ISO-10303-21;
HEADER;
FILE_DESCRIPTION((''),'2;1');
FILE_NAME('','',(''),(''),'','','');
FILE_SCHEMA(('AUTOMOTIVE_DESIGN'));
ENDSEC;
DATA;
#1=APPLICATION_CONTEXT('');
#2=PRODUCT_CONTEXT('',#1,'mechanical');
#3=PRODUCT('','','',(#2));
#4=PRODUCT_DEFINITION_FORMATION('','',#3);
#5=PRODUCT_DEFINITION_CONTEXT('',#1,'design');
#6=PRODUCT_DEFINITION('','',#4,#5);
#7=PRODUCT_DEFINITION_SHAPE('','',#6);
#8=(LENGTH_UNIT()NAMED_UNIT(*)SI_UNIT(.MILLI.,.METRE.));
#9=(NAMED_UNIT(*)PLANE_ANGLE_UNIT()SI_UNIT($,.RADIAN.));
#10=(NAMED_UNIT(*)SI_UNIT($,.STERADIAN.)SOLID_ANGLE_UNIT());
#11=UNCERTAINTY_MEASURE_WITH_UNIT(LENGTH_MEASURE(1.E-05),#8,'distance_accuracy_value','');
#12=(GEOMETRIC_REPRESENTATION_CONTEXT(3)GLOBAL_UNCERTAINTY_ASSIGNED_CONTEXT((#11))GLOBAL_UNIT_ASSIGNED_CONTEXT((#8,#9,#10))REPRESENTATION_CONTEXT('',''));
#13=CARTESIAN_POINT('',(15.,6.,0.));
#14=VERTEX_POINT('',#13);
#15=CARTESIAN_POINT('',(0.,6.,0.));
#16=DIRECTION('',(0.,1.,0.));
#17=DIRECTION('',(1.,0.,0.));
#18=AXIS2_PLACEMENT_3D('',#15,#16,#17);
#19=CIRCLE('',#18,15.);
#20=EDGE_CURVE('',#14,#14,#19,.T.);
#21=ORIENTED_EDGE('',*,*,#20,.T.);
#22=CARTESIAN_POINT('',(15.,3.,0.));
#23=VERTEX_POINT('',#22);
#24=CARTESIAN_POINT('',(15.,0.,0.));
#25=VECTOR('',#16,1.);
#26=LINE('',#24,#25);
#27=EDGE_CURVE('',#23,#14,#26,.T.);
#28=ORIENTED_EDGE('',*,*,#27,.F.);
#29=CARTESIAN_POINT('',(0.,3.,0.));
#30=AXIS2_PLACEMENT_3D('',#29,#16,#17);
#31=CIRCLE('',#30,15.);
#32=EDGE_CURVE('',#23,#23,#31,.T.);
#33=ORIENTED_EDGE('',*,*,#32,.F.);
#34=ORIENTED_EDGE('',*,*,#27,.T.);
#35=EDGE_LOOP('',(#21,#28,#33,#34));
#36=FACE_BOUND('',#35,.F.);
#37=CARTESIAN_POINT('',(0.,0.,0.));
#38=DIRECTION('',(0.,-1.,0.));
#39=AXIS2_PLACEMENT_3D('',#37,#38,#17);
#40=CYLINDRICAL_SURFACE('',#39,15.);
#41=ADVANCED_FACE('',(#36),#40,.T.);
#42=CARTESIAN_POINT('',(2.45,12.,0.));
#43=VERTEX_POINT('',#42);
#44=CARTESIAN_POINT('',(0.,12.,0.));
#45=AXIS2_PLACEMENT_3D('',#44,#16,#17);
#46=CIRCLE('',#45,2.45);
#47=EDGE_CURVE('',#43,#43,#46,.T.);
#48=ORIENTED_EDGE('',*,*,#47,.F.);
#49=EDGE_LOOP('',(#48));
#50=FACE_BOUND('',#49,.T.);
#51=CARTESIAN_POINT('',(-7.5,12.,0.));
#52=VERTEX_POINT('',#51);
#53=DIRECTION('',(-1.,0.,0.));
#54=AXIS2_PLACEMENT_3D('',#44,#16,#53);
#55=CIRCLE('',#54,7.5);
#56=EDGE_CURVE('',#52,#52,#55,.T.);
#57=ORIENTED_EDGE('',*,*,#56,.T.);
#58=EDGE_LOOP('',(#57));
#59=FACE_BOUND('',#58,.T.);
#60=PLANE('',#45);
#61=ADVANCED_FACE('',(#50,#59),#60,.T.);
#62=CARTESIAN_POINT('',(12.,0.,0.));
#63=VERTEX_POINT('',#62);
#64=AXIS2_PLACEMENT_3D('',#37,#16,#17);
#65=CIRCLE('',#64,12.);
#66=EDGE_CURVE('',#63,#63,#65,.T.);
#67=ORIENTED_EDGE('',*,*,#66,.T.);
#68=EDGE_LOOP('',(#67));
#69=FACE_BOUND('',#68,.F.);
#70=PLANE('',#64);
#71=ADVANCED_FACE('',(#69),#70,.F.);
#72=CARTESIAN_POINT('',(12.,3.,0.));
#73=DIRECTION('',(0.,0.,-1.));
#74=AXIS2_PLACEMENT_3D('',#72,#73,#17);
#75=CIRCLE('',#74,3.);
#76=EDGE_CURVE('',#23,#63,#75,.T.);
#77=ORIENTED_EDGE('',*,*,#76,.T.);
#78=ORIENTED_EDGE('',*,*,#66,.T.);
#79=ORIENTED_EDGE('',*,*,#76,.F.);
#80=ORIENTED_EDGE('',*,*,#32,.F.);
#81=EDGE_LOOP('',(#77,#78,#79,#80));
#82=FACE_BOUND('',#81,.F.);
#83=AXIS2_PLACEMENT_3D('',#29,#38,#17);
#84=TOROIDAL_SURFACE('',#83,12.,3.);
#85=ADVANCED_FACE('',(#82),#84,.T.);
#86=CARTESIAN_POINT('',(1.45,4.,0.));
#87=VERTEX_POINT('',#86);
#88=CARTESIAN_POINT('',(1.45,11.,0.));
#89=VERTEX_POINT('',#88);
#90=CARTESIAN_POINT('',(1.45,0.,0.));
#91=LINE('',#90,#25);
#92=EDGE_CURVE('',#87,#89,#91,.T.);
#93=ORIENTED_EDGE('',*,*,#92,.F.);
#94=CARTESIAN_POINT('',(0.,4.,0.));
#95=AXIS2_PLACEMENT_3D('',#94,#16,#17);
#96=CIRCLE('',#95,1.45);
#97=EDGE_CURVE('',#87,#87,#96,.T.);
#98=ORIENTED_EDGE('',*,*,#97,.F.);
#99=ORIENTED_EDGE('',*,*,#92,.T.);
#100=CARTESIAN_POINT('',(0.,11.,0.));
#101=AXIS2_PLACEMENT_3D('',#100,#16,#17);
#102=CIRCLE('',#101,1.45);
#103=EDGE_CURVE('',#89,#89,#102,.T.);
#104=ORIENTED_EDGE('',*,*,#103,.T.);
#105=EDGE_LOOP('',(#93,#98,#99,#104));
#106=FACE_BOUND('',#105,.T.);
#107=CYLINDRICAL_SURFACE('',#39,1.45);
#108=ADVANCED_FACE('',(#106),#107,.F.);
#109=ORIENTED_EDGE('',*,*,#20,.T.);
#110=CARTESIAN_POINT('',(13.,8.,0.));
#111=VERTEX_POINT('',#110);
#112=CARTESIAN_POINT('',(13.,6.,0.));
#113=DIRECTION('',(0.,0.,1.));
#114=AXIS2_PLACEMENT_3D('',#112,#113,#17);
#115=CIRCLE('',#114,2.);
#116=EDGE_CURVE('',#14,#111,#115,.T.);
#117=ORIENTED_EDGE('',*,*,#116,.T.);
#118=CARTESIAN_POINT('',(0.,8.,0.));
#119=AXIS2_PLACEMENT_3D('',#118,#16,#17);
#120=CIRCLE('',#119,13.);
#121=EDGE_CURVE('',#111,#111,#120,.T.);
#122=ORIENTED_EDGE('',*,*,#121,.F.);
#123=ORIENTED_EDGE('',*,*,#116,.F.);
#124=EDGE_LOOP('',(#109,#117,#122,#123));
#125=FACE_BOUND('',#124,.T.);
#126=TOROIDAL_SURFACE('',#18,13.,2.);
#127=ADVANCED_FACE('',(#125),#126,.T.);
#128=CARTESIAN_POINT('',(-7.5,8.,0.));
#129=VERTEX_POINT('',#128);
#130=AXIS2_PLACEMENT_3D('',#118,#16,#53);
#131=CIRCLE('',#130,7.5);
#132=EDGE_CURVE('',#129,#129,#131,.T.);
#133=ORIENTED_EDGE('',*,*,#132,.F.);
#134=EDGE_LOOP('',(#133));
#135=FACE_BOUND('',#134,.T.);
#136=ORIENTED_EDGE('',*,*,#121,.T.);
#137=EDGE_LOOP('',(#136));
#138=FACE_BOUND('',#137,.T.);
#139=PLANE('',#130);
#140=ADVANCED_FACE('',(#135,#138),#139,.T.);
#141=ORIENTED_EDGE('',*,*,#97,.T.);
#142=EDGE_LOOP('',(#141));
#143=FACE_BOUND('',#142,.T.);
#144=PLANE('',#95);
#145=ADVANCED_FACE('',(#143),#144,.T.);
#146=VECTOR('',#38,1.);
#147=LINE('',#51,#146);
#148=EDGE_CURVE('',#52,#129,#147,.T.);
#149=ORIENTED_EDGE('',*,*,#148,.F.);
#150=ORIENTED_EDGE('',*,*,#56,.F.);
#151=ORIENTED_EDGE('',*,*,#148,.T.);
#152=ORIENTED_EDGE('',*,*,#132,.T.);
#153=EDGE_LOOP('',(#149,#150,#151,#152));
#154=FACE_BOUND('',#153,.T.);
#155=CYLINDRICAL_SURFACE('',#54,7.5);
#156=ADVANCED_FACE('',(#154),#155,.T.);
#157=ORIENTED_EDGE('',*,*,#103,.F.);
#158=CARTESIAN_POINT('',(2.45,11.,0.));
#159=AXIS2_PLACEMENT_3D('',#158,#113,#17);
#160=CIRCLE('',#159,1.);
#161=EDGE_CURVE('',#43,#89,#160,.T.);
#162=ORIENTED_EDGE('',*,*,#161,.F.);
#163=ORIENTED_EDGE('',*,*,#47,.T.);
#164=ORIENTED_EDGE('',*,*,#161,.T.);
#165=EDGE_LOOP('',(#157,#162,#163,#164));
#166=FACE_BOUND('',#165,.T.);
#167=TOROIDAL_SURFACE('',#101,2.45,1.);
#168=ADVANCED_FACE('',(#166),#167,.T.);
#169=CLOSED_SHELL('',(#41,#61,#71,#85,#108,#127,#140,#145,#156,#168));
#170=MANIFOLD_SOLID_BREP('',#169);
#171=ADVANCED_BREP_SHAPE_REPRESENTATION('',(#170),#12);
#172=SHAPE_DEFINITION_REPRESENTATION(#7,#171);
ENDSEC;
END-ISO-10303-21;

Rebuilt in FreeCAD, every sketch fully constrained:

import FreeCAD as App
import Part
import Sketcher

V = App.Vector


def edges_at(feature, points):
    """Names of the edges that pass closest to the given points."""
    edges = feature.Shape.Edges
    near = lambda p: min(range(len(edges)), key=lambda i: edges[i].distToShape(Part.Vertex(*p))[0])
    return sorted({f"Edge{near(p) + 1}" for p in points})

doc = App.newDocument("Part")
body = doc.addObject("PartDesign::Body", "Body")

sketch1 = body.newObject("Sketcher::SketchObject", "Sketch")
sketch1.AttachmentSupport = (doc.getObject("XZ_Plane"), [""])
sketch1.MapMode = "FlatFace"
sketch1.addGeometry([
    Part.Circle(V(0, 0, 0), V(0, 0, 1), 15),
    Part.Circle(V(0, 0, 0), V(0, 0, 1), 1.45),
], False)
sketch1.addConstraint([
    Sketcher.Constraint("Coincident", 0, 3, -1, 1),
    Sketcher.Constraint("Coincident", 1, 3, -1, 1),
    Sketcher.Constraint("Diameter", 0, 30.0),
    Sketcher.Constraint("Diameter", 1, 2.9),
])
pad1 = body.newObject("PartDesign::Pad", "Pad")
pad1.Profile = sketch1
pad1.Length = 12
pad1.Reversed = True

sketch2 = body.newObject("Sketcher::SketchObject", "Sketch001")
sketch2.AttachmentSupport = (doc.getObject("XZ_Plane"), [""])
sketch2.MapMode = "FlatFace"
sketch2.addGeometry(Part.Circle(V(0, 0, 0), V(0, 0, 1), 1.45), False)
sketch2.addConstraint([
    Sketcher.Constraint("Coincident", 0, 3, -1, 1),
    Sketcher.Constraint("Diameter", 0, 2.9),
])
pad2 = body.newObject("PartDesign::Pad", "Pad001")
pad2.Profile = sketch2
pad2.Length = 4
pad2.Reversed = True
doc.recompute()

fillet = body.newObject("PartDesign::Fillet", "Fillet")
fillet.Base = (pad2, edges_at(pad2, [(-1.352, 12, -0.524)]))
fillet.Radius = 1

sketch3 = body.newObject("Sketcher::SketchObject", "Sketch002")
sketch3.AttachmentSupport = (doc.getObject("XZ_Plane"), [""])
sketch3.MapMode = "FlatFace"
sketch3.AttachmentOffset = App.Placement(V(0, 0, -12), App.Rotation())
sketch3.addGeometry([
    Part.Circle(V(0, 0, 0), V(0, 0, 1), 15),
    Part.Circle(V(0, 0, 0), V(0, 0, 1), 7.5),
], False)
sketch3.addConstraint([
    Sketcher.Constraint("Coincident", 0, 3, -1, 1),
    Sketcher.Constraint("Coincident", 1, 3, -1, 1),
    Sketcher.Constraint("Diameter", 0, 30.0),
    Sketcher.Constraint("Diameter", 1, 15.0),
])
pocket1 = body.newObject("PartDesign::Pocket", "Pocket")
pocket1.Profile = sketch3
pocket1.Length = 4
pocket1.Reversed = True
doc.recompute()

fillet2 = body.newObject("PartDesign::Fillet", "Fillet001")
fillet2.Base = (pocket1, edges_at(pocket1, [(-13.985, 0, 5.424)]))
fillet2.Radius = 3
doc.recompute()

fillet3 = body.newObject("PartDesign::Fillet", "Fillet002")
fillet3.Base = (fillet2, edges_at(fillet2, [(-13.985, 8, -5.424)]))
fillet3.Radius = 2

doc.recompute()
